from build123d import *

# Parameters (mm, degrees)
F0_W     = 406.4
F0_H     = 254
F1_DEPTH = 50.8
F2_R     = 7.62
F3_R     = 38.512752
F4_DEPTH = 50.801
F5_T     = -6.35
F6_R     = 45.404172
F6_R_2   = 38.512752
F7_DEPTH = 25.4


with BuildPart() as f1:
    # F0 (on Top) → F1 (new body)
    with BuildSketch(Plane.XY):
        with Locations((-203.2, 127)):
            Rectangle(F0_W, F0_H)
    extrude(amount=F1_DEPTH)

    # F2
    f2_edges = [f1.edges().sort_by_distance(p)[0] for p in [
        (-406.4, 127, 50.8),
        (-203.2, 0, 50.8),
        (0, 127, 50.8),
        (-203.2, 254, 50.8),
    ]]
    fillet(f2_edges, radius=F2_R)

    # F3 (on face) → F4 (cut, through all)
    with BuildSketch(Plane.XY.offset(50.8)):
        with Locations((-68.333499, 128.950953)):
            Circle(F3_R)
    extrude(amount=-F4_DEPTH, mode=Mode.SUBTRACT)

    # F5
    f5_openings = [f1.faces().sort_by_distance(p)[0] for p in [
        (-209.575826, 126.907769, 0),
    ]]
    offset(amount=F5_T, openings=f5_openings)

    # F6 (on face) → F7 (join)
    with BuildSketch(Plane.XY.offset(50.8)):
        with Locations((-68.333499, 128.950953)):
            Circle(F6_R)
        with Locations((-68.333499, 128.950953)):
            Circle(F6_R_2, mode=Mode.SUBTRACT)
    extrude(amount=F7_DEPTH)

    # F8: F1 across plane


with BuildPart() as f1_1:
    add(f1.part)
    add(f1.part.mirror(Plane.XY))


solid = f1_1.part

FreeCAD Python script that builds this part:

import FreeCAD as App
import Part
import Sketcher
Q = App.Units.Quantity


def edges_at(feature, points):
    """Names of the edges that pass closest to the given points."""
    edges = feature.Shape.Edges
    near = lambda p: min(range(len(edges)), key=lambda i: edges[i].distToShape(Part.Vertex(*p))[0])
    return sorted({f"Edge{near(p) + 1}" for p in points})


def faces_at(feature, points):
    """Names of the faces that lie closest to the given points."""
    faces = feature.Shape.Faces
    near = lambda p: min(range(len(faces)), key=lambda i: faces[i].distToShape(Part.Vertex(*p))[0])
    return sorted({f"Face{near(p) + 1}" for p in points})

doc = App.newDocument("Part")
body = doc.addObject("PartDesign::Body", "Body")

# Sketch on XY plane
sketch1 = doc.addObject("Sketcher::SketchObject", "Sketch")
body.addObject(sketch1)
sketch1.AttachmentSupport = (doc.XY_Plane, [""])
sketch1.MapMode = "FlatFace"
sketch1.addGeometry(Part.LineSegment(App.Vector(-406, 254, 0), App.Vector(-406, 0, 0)), False)
sketch1.addGeometry(Part.LineSegment(App.Vector(-406, 0, 0), App.Vector(0, 0, 0)), False)
sketch1.addGeometry(Part.LineSegment(App.Vector(0, 0, 0), App.Vector(0, 254, 0)), False)
sketch1.addGeometry(Part.LineSegment(App.Vector(0, 254, 0), App.Vector(-406, 254, 0)), False)
sketch1.addConstraint(Sketcher.Constraint("Coincident", 0, 2, 1, 1))
sketch1.addConstraint(Sketcher.Constraint("Coincident", 1, 2, 2, 1))
sketch1.addConstraint(Sketcher.Constraint("Coincident", 2, 2, 3, 1))
sketch1.addConstraint(Sketcher.Constraint("Coincident", 3, 2, 0, 1))
sketch1.addConstraint(Sketcher.Constraint("Vertical", 0))
sketch1.addConstraint(Sketcher.Constraint("Horizontal", 1))
sketch1.addConstraint(Sketcher.Constraint("Vertical", 2))
sketch1.addConstraint(Sketcher.Constraint("Horizontal", 3))
sketch1.addConstraint(Sketcher.Constraint("Coincident", 1, 2, -1, 1))
sketch1.addConstraint(Sketcher.Constraint("DistanceX", 1, 1, 1, 2, Q("16 in")))
sketch1.addConstraint(Sketcher.Constraint("DistanceY", 0, 2, 0, 1, Q("10 in")))
pad1 = doc.addObject("PartDesign::Pad", "Pad")
body.addObject(pad1)
pad1.Profile = sketch1
pad1.Length = Q("2 in")
doc.recompute()

fillet = doc.addObject("PartDesign::Fillet", "Fillet")
body.addObject(fillet)
fillet.Base = (pad1, edges_at(pad1, [
    (-406.4, 127, 50.8),
    (-203.2, 0, 50.8),
    (0, 127, 50.8),
    (-203.2, 254, 50.8),
]))
fillet.Radius = Q("0.3 in")

# Sketch on XY plane
sketch2 = doc.addObject("Sketcher::SketchObject", "Sketch001")
body.addObject(sketch2)
sketch2.AttachmentSupport = (doc.XY_Plane, [""])
sketch2.MapMode = "FlatFace"
sketch2.AttachmentOffset = App.Placement(App.Vector(0, 0, 2 * 25.4), App.Rotation())
sketch2.addGeometry(Part.Circle(App.Vector(-68, 129, 0), App.Vector(0, 0, 1), 39), False)
sketch2.addConstraint(Sketcher.Constraint("Diameter", 0, Q("3.0325002 in")))
sketch2.addConstraint(Sketcher.Constraint("DistanceX", 0, 3, -1, 1, 68.333499))
sketch2.addConstraint(Sketcher.Constraint("DistanceY", -1, 1, 0, 3, 128.950953))
pocket1 = doc.addObject("PartDesign::Pocket", "Pocket")
body.addObject(pocket1)
pocket1.Profile = sketch2
pocket1.Type = "ThroughAll"
doc.recompute()

thickness = doc.addObject("PartDesign::Thickness", "Thickness")
body.addObject(thickness)
thickness.Base = (pocket1, faces_at(pocket1, [(-203.2, 127, 0)]))
thickness.Value = Q("0.25 in")
thickness.Reversed = True
thickness.Join = "Arc"

# Sketch on XY plane
sketch3 = doc.addObject("Sketcher::SketchObject", "Sketch002")
body.addObject(sketch3)
sketch3.AttachmentSupport = (doc.XY_Plane, [""])
sketch3.MapMode = "FlatFace"
sketch3.AttachmentOffset = App.Placement(App.Vector(0, 0, 2 * 25.4), App.Rotation())
sketch3.addGeometry(Part.Circle(App.Vector(-68, 129, 0), App.Vector(0, 0, 1), 45), False)
sketch3.addGeometry(Part.Circle(App.Vector(-68, 129, 0), App.Vector(0, 0, 1), 39), False)
sketch3.addConstraint(Sketcher.Constraint("Coincident", 1, 3, 0, 3))
sketch3.addConstraint(Sketcher.Constraint("Diameter", 1, Q("3.0325002 in")))
sketch3.addConstraint(Sketcher.Constraint("Diameter", 0, 90.808344))
sketch3.addConstraint(Sketcher.Constraint("DistanceX", 0, 3, -1, 1, 68.333499))
sketch3.addConstraint(Sketcher.Constraint("DistanceY", -1, 1, 0, 3, 128.950953))
pad2 = doc.addObject("PartDesign::Pad", "Pad001")
body.addObject(pad2)
pad2.Profile = sketch3
pad2.Length = Q("1 in")
body2 = doc.addObject("PartDesign::Body", "Body001")
doc.recompute()

body2.BaseFeature = body
doc.recompute()

mirroring = doc.addObject("Part::Mirroring", "Mirroring")
mirroring.Source = body
mirroring.Base = App.Vector(0, 0, 0)
mirroring.Normal = App.Vector(0, 0, 1)
body3 = doc.addObject("PartDesign::Body", "Body002")
body3.BaseFeature = mirroring
boolean = doc.addObject("PartDesign::Boolean", "Boolean")
body2.addObject(boolean)
boolean.Type = "Fuse"
boolean.addObjects([body3])
doc.recompute()
mirroring.Visibility = False

doc.recompute()
